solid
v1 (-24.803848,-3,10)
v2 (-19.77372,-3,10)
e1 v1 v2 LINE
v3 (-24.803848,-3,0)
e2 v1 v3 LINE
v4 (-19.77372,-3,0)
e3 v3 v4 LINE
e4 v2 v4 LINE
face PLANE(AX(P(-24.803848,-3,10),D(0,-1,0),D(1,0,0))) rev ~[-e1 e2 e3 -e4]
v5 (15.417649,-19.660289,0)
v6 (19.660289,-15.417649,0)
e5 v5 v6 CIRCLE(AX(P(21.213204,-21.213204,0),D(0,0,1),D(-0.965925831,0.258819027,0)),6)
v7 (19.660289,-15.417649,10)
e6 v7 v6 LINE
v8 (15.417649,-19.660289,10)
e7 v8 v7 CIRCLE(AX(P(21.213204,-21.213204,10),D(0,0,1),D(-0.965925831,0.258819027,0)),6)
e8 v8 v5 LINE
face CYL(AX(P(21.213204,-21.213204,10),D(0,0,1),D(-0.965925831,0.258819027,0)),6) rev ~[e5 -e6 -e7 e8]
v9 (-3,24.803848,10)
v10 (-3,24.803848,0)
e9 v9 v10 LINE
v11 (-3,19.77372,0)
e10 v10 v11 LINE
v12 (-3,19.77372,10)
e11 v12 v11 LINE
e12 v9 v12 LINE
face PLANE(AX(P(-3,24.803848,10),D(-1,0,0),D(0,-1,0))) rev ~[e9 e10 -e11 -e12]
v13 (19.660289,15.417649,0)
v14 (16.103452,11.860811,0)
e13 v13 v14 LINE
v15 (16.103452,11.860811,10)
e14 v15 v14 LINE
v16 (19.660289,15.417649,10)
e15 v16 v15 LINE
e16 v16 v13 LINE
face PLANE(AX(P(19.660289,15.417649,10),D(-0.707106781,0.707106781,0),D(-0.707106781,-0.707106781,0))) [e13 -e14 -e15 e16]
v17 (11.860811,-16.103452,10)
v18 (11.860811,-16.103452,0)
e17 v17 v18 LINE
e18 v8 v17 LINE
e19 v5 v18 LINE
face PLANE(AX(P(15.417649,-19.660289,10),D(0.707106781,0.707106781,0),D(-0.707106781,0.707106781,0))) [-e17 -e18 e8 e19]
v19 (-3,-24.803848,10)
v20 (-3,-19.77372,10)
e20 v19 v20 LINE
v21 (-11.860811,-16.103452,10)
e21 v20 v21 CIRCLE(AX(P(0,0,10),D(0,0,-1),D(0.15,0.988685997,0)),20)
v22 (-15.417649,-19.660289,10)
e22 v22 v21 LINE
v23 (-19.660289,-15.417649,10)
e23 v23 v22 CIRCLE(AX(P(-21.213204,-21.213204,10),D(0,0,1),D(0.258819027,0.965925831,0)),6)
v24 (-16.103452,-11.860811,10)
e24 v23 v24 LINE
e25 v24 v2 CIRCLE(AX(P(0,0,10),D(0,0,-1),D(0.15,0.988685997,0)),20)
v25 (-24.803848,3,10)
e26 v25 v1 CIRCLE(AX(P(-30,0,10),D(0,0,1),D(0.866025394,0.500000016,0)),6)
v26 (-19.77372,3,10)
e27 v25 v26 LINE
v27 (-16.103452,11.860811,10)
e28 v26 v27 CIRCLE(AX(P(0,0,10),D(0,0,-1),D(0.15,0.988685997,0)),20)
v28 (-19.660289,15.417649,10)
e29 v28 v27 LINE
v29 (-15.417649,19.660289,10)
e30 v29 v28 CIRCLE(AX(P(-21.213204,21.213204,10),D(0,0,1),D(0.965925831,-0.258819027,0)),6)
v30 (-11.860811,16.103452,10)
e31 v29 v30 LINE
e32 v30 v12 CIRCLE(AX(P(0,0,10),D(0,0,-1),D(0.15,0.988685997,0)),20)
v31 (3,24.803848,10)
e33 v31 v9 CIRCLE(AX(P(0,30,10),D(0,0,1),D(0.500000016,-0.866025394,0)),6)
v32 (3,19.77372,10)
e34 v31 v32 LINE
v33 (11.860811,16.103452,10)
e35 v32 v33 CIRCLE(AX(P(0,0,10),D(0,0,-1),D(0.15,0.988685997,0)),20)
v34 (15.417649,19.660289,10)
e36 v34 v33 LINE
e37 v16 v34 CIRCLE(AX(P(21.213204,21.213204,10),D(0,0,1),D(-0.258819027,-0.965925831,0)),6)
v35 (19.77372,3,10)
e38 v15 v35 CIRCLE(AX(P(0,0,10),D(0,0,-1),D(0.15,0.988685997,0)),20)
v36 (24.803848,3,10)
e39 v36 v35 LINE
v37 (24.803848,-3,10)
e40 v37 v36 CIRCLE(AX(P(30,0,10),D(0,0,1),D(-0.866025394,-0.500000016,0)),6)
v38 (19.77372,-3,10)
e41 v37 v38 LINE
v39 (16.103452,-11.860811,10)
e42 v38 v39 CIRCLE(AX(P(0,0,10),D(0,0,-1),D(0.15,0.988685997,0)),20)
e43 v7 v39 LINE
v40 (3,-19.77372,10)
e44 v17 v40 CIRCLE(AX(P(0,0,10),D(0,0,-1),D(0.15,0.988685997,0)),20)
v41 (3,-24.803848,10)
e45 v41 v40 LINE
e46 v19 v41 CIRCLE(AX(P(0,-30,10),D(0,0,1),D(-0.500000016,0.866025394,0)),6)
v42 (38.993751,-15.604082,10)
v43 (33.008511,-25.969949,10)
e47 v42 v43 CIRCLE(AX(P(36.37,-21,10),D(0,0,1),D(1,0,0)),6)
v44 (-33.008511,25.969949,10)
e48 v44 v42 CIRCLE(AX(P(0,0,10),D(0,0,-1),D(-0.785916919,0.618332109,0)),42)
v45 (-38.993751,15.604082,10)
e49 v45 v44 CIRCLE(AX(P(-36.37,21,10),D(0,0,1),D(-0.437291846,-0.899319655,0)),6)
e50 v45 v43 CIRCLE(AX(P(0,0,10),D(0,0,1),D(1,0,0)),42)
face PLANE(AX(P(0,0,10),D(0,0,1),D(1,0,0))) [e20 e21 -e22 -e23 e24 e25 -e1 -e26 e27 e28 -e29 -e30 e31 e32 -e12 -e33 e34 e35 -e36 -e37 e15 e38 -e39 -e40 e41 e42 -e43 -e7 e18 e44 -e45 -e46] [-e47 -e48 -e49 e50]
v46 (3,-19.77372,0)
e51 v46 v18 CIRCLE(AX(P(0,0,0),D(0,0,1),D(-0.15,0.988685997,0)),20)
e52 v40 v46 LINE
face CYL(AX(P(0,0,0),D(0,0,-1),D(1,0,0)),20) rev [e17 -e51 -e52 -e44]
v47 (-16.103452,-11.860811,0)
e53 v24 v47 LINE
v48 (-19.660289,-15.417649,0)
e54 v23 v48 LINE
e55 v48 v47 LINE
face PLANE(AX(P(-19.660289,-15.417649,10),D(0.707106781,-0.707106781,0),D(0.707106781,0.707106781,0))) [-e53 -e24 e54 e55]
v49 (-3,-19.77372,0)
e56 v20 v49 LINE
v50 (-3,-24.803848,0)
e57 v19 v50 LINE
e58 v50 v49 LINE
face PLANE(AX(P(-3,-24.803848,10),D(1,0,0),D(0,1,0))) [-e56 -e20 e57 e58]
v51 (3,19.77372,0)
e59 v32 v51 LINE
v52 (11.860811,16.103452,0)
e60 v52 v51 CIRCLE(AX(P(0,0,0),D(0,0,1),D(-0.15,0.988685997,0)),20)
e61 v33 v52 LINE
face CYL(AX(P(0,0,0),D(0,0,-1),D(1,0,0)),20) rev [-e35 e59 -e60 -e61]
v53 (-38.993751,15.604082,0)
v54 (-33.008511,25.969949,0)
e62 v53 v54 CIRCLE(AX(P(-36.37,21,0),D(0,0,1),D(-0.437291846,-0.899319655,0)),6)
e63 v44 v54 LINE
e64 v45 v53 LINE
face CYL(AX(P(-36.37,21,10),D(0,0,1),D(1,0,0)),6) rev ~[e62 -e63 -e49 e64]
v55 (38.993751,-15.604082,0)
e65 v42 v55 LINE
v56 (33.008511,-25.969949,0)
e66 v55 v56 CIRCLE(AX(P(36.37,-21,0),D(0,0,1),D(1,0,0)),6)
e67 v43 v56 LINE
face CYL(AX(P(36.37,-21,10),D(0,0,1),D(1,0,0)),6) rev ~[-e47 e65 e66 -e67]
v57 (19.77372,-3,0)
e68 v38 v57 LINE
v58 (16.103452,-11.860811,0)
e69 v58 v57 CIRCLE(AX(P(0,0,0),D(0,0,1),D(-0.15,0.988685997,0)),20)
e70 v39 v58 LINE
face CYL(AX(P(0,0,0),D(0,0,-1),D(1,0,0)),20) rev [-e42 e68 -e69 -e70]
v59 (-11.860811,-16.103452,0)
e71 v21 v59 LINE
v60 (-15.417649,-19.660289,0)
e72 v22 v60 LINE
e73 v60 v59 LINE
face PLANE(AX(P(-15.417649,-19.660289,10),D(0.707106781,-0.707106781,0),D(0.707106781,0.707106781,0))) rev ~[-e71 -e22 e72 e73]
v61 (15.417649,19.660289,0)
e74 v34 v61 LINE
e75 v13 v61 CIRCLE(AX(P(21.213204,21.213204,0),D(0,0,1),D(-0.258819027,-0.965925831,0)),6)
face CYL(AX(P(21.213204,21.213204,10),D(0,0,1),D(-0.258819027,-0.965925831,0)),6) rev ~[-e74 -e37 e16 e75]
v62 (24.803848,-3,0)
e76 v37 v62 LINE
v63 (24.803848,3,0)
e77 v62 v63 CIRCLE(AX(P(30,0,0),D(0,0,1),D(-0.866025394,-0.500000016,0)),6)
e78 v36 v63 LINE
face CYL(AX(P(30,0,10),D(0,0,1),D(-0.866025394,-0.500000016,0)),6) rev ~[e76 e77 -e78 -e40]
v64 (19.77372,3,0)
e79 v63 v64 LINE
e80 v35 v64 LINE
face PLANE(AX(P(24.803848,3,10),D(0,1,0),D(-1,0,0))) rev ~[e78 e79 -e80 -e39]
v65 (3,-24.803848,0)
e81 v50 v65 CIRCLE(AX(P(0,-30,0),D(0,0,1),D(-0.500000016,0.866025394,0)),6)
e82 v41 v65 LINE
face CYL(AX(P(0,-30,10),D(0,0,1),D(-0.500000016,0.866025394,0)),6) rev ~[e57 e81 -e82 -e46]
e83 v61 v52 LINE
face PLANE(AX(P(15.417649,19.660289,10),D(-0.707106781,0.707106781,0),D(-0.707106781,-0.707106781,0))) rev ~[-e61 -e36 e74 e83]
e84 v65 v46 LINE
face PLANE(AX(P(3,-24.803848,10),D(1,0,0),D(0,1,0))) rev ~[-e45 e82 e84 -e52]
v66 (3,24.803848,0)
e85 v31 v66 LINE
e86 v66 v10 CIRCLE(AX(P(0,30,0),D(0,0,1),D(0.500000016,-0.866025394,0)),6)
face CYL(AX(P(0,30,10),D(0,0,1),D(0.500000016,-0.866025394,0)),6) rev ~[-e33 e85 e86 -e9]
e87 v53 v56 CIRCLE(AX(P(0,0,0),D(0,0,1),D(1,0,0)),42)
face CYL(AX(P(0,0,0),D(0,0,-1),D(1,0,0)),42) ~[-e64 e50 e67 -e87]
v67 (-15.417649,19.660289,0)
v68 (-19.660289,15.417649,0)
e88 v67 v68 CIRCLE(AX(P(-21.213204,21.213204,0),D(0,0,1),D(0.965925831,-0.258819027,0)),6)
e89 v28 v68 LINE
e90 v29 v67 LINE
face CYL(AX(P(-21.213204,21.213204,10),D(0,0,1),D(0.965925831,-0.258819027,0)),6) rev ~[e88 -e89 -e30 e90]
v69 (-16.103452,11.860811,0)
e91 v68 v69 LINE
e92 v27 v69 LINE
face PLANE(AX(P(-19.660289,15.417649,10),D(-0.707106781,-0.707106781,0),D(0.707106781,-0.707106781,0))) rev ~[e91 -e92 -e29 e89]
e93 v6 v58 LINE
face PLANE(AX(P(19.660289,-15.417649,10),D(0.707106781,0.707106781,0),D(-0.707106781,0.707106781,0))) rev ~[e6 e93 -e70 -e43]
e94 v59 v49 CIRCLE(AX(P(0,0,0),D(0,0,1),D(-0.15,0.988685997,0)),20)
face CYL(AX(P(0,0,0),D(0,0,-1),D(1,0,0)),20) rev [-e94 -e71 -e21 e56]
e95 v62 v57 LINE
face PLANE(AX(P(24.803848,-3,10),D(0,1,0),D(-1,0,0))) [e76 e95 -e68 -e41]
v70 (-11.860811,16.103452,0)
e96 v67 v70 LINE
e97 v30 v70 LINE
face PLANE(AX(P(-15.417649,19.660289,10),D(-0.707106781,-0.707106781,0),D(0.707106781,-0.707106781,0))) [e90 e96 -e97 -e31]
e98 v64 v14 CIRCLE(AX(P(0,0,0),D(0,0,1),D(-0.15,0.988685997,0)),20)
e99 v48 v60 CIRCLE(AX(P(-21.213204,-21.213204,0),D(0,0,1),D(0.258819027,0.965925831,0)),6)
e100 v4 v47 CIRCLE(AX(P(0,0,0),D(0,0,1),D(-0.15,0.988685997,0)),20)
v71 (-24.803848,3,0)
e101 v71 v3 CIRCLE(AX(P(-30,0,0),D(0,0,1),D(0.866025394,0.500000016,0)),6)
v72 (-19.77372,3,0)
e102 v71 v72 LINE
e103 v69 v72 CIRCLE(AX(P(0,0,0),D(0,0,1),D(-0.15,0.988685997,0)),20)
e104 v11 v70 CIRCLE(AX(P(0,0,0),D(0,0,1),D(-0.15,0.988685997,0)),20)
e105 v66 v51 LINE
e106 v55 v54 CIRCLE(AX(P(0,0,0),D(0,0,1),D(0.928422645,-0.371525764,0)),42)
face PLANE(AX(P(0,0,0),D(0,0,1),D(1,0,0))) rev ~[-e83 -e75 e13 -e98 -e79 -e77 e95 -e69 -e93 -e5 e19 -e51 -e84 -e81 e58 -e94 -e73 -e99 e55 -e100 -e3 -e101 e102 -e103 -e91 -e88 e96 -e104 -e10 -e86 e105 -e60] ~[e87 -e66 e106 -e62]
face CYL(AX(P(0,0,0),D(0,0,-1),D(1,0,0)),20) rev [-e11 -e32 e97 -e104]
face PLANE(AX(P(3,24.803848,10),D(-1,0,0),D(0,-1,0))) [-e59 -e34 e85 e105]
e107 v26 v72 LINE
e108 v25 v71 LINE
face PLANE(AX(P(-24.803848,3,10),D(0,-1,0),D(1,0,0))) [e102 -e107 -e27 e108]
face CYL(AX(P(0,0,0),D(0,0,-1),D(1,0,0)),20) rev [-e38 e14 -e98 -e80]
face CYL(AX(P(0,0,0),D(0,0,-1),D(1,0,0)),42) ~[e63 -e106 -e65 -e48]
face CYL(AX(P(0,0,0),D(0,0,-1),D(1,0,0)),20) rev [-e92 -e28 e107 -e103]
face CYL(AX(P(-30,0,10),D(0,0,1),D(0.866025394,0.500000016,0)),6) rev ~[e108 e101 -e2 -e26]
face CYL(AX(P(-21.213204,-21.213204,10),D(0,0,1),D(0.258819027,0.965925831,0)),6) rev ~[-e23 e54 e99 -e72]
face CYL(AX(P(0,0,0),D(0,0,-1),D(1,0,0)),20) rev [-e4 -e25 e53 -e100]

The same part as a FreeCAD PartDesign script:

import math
import FreeCAD as App
import Part
import Sketcher

V = App.Vector
Q = App.Units.Quantity

doc = App.newDocument("Part")
body = doc.addObject("PartDesign::Body", "Body")

# Sketch on XY plane
sketch1 = body.newObject("Sketcher::SketchObject", "Sketch")
sketch1.AttachmentSupport = (doc.getObject("XY_Plane"), [""])
sketch1.MapMode = "FlatFace"
sketch1.addGeometry([
    Part.Circle(V(0, 0, 0), V(0, 0, 1), 42),
    Part.Circle(V(0, 0, 0), V(0, 0, 1), 20),
], False)
sketch1.addConstraint([
    Sketcher.Constraint("Coincident", 0, 3, -1, 1),
    Sketcher.Constraint("Coincident", 1, 3, -1, 1),
    Sketcher.Constraint("Diameter", 0, Q("84 mm")),
    Sketcher.Constraint("Diameter", 1, Q("40 mm")),
])
pad1 = body.newObject("PartDesign::Pad", "Pad")
pad1.Profile = sketch1
pad1.Length = 10

# Sketch on XY plane
sketch2 = body.newObject("Sketcher::SketchObject", "Sketch001")
sketch2.AttachmentSupport = (doc.getObject("XY_Plane"), [""])
sketch2.MapMode = "FlatFace"
sketch2.AttachmentOffset = App.Placement(V(0, 0, 10), App.Rotation())
sketch2.addGeometry([
    Part.Circle(V(-36, 21, 0), V(0, 0, 1), 6),
    Part.Circle(V(36, -21, 0), V(0, 0, 1), 6),
], False)
sketch2.addConstraint([
    Sketcher.Constraint("Equal", 0, 1),
    Sketcher.Constraint("Symmetric", 0, 3, 1, 3, -1, 1),
    Sketcher.Constraint("Diameter", 0, Q("12 mm")),
    Sketcher.Constraint("DistanceY", -1, 1, 0, 3, Q("21 mm")),
    Sketcher.Constraint("DistanceX", 0, 3, -1, 1, Q("36.37 mm")),
])
pocket1 = body.newObject("PartDesign::Pocket", "Pocket")
pocket1.Profile = sketch2
pocket1.Type = "ThroughAll"

# Sketch on XY plane
sketch3 = body.newObject("Sketcher::SketchObject", "Sketch002")
sketch3.AttachmentSupport = (doc.getObject("XY_Plane"), [""])
sketch3.MapMode = "FlatFace"
sketch3.AttachmentOffset = App.Placement(V(0, 0, 10), App.Rotation())
sketch3.addGeometry([
    Part.ArcOfCircle(Part.Circle(V(0, 30, 0), V(0, 0, 1), 6), math.radians(-60), math.radians(240)),
    Part.LineSegment(V(-3, 25, 0), V(-3, 20, 0)),
    Part.ArcOfCircle(Part.Circle(V(0, 0, 0), V(0, 0, 1), 20), math.radians(81.37), math.radians(98.63)),
    Part.LineSegment(V(3, 20, 0), V(3, 25, 0)),
], False)
sketch3.addConstraint([
    Sketcher.Constraint("Coincident", 0, 2, 1, 1),
    Sketcher.Constraint("Coincident", 1, 2, 2, 2),
    Sketcher.Constraint("Coincident", 2, 1, 3, 1),
    Sketcher.Constraint("Coincident", 3, 2, 0, 1),
    Sketcher.Constraint("Vertical", 1),
    Sketcher.Constraint("Vertical", 3),
    Sketcher.Constraint("Coincident", 2, 3, -1, 1),
    Sketcher.Constraint("Symmetric", 0, 2, 3, 2, -2),
    Sketcher.Constraint("Radius", 0, Q("6 mm")),
    Sketcher.Constraint("DistanceY", -1, 1, 0, 3, Q("30 mm")),
    Sketcher.Constraint("DistanceX", 0, 2, -1, 1, Q("3 mm")),
    Sketcher.Constraint("Radius", 2, Q("20.000006 mm")),
])
pocket2 = body.newObject("PartDesign::Pocket", "Pocket001")
pocket2.Profile = sketch3
pocket2.Type = "ThroughAll"
doc.recompute()

polarpattern = body.newObject("PartDesign::PolarPattern", "PolarPattern")
polarpattern.Originals = [pocket2]
polarpattern.Axis = (doc.getObject("Z_Axis"), [""])
polarpattern.Angle = 360
polarpattern.Occurrences = 8
body.Tip = polarpattern

doc.recompute()
